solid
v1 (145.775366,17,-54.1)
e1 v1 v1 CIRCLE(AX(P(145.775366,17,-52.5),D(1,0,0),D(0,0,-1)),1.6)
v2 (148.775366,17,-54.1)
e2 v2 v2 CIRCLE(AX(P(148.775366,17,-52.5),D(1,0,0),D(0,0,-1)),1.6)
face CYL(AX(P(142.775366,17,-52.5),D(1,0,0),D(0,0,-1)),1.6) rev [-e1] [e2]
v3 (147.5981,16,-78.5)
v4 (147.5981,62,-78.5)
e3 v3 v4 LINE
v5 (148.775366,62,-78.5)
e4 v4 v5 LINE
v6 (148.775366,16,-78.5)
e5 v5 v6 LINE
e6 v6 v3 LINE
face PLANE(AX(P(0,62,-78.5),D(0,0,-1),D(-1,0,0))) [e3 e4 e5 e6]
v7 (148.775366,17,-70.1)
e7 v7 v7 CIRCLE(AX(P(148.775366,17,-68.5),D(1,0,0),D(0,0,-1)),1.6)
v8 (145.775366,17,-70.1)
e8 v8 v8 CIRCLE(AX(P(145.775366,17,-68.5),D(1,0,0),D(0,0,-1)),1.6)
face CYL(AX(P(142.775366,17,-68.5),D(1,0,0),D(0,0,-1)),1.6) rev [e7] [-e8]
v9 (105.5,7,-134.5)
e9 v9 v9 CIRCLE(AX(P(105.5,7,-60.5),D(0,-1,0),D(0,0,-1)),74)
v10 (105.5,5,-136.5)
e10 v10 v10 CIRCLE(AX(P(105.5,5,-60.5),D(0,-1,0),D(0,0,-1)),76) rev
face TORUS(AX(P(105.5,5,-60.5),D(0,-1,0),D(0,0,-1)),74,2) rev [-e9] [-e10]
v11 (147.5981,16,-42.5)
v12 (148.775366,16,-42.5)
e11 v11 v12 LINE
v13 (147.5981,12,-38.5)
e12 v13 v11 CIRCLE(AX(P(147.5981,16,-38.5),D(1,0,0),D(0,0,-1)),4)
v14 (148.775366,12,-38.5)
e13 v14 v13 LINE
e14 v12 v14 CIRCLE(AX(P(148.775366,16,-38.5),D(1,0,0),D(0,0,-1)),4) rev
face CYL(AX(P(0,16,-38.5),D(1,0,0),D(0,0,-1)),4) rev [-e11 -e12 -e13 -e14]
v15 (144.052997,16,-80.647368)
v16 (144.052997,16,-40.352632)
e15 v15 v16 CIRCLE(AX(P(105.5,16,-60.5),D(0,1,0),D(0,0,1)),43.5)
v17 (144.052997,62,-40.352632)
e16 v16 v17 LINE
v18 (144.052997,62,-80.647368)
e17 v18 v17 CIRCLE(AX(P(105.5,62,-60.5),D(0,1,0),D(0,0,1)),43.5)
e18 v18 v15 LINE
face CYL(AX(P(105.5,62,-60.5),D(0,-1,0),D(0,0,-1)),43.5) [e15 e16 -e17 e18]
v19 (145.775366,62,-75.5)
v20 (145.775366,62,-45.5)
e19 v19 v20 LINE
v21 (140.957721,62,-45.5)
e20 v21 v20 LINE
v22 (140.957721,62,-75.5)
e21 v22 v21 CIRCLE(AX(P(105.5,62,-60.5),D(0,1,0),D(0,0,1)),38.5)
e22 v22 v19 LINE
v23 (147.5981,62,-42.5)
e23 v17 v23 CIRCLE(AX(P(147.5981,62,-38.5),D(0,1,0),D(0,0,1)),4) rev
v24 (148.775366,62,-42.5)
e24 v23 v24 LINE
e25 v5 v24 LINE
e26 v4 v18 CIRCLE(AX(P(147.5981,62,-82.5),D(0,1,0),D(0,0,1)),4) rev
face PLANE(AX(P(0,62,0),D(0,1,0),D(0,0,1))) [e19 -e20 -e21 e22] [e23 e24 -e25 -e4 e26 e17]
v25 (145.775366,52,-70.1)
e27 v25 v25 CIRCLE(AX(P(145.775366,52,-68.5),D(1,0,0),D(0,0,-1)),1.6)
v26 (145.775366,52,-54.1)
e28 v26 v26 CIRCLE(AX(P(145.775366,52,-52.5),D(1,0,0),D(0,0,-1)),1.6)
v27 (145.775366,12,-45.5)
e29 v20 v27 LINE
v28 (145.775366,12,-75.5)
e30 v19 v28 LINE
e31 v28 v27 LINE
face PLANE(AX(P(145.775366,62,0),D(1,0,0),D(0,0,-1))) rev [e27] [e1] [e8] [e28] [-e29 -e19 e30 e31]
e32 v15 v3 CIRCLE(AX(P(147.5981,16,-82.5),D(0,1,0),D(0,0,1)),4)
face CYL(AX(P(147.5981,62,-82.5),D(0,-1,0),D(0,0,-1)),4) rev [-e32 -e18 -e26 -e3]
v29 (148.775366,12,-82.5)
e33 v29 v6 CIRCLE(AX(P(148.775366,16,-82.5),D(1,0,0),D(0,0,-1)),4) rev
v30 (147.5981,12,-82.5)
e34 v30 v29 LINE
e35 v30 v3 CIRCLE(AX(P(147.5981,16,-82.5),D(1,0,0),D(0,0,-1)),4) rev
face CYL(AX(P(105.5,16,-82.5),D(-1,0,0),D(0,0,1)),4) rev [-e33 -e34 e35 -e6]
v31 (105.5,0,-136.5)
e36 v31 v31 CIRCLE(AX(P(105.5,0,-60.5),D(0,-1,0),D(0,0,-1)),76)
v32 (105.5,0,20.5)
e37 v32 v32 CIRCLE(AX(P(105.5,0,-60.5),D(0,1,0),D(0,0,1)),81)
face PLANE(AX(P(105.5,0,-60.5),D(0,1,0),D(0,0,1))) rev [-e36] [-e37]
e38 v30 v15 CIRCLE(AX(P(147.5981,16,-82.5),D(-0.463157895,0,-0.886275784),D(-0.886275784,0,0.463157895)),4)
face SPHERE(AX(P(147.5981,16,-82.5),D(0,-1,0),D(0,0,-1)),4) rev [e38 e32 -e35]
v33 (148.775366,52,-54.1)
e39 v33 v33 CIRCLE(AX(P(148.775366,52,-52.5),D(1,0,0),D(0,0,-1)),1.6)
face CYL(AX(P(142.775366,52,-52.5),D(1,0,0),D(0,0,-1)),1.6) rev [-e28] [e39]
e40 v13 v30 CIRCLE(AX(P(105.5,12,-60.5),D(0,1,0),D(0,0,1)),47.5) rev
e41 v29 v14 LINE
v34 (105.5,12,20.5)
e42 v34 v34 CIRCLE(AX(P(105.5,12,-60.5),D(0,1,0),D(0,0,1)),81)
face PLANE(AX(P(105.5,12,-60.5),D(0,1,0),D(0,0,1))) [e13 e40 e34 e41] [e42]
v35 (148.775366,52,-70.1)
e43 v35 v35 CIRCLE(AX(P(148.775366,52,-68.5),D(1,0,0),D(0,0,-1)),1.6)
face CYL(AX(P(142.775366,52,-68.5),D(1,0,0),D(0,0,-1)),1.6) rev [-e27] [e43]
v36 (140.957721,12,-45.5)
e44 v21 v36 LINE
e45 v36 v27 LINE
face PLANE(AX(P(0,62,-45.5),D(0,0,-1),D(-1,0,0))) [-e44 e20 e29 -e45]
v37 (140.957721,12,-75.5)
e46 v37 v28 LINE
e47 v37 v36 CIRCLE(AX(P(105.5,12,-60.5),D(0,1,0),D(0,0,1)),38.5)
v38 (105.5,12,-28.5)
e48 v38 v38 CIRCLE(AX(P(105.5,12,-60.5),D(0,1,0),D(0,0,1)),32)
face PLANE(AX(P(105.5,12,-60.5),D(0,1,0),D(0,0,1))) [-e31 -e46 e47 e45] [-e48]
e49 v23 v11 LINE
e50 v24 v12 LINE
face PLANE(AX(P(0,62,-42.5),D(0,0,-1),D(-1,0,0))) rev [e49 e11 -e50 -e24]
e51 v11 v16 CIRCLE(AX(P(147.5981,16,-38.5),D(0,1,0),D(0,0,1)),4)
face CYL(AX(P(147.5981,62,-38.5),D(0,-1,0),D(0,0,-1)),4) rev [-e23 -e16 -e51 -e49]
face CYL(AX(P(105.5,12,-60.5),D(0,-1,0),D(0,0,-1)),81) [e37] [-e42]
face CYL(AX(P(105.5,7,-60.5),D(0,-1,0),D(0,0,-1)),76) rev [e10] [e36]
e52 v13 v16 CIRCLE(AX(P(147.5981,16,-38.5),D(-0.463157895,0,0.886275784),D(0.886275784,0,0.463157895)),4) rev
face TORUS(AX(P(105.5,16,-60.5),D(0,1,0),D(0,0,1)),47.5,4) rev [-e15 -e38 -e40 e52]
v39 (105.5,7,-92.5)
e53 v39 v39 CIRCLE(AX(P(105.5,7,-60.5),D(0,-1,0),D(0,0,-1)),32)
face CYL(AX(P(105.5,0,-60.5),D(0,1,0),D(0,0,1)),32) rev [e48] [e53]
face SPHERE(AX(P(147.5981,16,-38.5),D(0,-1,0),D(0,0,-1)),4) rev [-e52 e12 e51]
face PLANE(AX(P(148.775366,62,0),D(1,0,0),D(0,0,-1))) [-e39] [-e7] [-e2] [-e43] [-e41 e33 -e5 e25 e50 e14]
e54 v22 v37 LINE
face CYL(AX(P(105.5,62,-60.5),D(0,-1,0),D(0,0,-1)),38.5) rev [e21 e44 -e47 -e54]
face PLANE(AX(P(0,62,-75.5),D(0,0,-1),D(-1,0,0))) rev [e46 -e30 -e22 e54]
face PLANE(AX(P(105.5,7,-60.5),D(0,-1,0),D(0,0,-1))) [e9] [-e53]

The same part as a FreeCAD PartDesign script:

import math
import FreeCAD as App
import Part
import Sketcher


def edges_at(feature, points):
    """Names of the edges that pass closest to the given points."""
    edges = feature.Shape.Edges
    near = lambda p: min(range(len(edges)), key=lambda i: edges[i].distToShape(Part.Vertex(*p))[0])
    return sorted({f"Edge{near(p) + 1}" for p in points})

doc = App.newDocument("Part")
body = doc.addObject("PartDesign::Body", "Body")

# Sketch on XZ plane
sketch1 = body.newObject("Sketcher::SketchObject", "Sketch")
sketch1.AttachmentSupport = (doc.getObject("XZ_Plane"), [""])
sketch1.MapMode = "FlatFace"
sketch1.addGeometry(Part.Circle(App.Vector(106, -60, 0), App.Vector(0, 0, 1), 81), False)
sketch1.addConstraint([
    Sketcher.Constraint("Diameter", 0, 162.0),
    Sketcher.Constraint("DistanceX", -1, 1, 0, 3, 105.5),
    Sketcher.Constraint("DistanceY", 0, 3, -1, 1, 60.5),
])
pad1 = body.newObject("PartDesign::Pad", "Pad")
pad1.Profile = sketch1
pad1.Length = 12
pad1.Reversed = True

# Sketch on XZ plane
sketch2 = body.newObject("Sketcher::SketchObject", "Sketch001")
sketch2.AttachmentSupport = (doc.getObject("XZ_Plane"), [""])
sketch2.MapMode = "FlatFace"
sketch2.addGeometry(Part.Circle(App.Vector(106, -60, 0), App.Vector(0, 0, 1), 76), False)
sketch2.addConstraint([
    Sketcher.Constraint("Diameter", 0, 152.0),
    Sketcher.Constraint("DistanceX", -1, 1, 0, 3, 105.5),
    Sketcher.Constraint("DistanceY", 0, 3, -1, 1, 60.5),
])
pocket1 = body.newObject("PartDesign::Pocket", "Pocket")
pocket1.Profile = sketch2
pocket1.Length = 7

# Sketch on XZ plane
sketch3 = body.newObject("Sketcher::SketchObject", "Sketch002")
sketch3.AttachmentSupport = (doc.getObject("XZ_Plane"), [""])
sketch3.MapMode = "FlatFace"
sketch3.AttachmentOffset = App.Placement(App.Vector(0, 0, -12), App.Rotation())
sketch3.addGeometry(Part.Circle(App.Vector(106, -60, 0), App.Vector(0, 0, 1), 32), False)
sketch3.addConstraint([
    Sketcher.Constraint("Diameter", 0, 64.0),
    Sketcher.Constraint("DistanceX", -1, 1, 0, 3, 105.5),
    Sketcher.Constraint("DistanceY", 0, 3, -1, 1, 60.5),
])
pocket2 = body.newObject("PartDesign::Pocket", "Pocket001")
pocket2.Profile = sketch3
pocket2.Type = "ThroughAll"
pocket2.Reversed = True

# Sketch on XZ plane
sketch4 = body.newObject("Sketcher::SketchObject", "Sketch003")
sketch4.AttachmentSupport = (doc.getObject("XZ_Plane"), [""])
sketch4.MapMode = "FlatFace"
sketch4.AttachmentOffset = App.Placement(App.Vector(0, 0, -12), App.Rotation())
sketch4.addGeometry([
    Part.ArcOfCircle(Part.Circle(App.Vector(105.5, -60.5, 0), App.Vector(0, 0, 1), 43.5), math.radians(24), math.radians(336)),  # 0
    Part.LineSegment(App.Vector(145.1, -42.5, 0), App.Vector(148.8, -42.5, 0)),  # 1
    Part.LineSegment(App.Vector(148.8, -42.5, 0), App.Vector(148.8, -78.5, 0)),  # 2
    Part.LineSegment(App.Vector(148.8, -78.5, 0), App.Vector(145.1, -78.5, 0)),  # 3
    Part.ArcOfCircle(Part.Circle(App.Vector(105.5, -60.5, 0), App.Vector(0, 0, 1), 38.5), math.radians(23), math.radians(337)),  # 4
    Part.LineSegment(App.Vector(141, -75.5, 0), App.Vector(145.8, -75.5, 0)),  # 5
    Part.LineSegment(App.Vector(145.8, -75.5, 0), App.Vector(145.8, -45.5, 0)),  # 6
    Part.LineSegment(App.Vector(145.8, -45.5, 0), App.Vector(141, -45.5, 0)),  # 7
], False)
sketch4.addConstraint([
    Sketcher.Constraint("Coincident", 0, 1, 1, 1),
    Sketcher.Constraint("Coincident", 1, 2, 2, 1),
    Sketcher.Constraint("Coincident", 2, 2, 3, 1),
    Sketcher.Constraint("Coincident", 3, 2, 0, 2),
    Sketcher.Constraint("Coincident", 4, 2, 5, 1),
    Sketcher.Constraint("Coincident", 5, 2, 6, 1),
    Sketcher.Constraint("Coincident", 6, 2, 7, 1),
    Sketcher.Constraint("Coincident", 7, 2, 4, 1),
    Sketcher.Constraint("Horizontal", 1),
    Sketcher.Constraint("Vertical", 2),
    Sketcher.Constraint("Horizontal", 3),
    Sketcher.Constraint("Horizontal", 5),
    Sketcher.Constraint("Vertical", 6),
    Sketcher.Constraint("Horizontal", 7),
    Sketcher.Constraint("Coincident", 4, 3, 0, 3),
    Sketcher.Constraint("Vertical", 0, 1, 3, 2),
    Sketcher.Constraint("Vertical", 4, 2, 7, 2),
    Sketcher.Constraint("Radius", 0, 43.5),
    Sketcher.Constraint("Radius", 4, 38.5),
    Sketcher.Constraint("DistanceY", 2, 2, 2, 1, 36.0),
    Sketcher.Constraint("DistanceY", 6, 1, 6, 2, 30.0),
    Sketcher.Constraint("DistanceX", 5, 2, 2, 2, 3.0),
    Sketcher.Constraint("DistanceX", -1, 1, 0, 3, 105.5),
    Sketcher.Constraint("DistanceY", 0, 3, -1, 1, 60.5),
    Sketcher.Constraint("DistanceX", 1, 1, 1, 2, 3.67423),
])
pad2 = body.newObject("PartDesign::Pad", "Pad001")
pad2.Profile = sketch4
pad2.Length = 50
pad2.Reversed = True

# Sketch on YZ plane
sketch5 = body.newObject("Sketcher::SketchObject", "Sketch004")
sketch5.AttachmentSupport = (doc.getObject("YZ_Plane"), [""])
sketch5.MapMode = "FlatFace"
sketch5.AttachmentOffset = App.Placement(App.Vector(0, 0, 148.775366), App.Rotation())
sketch5.addGeometry([
    Part.Circle(App.Vector(52, -52.5, 0), App.Vector(0, 0, 1), 1.6),
    Part.Circle(App.Vector(52, -68.5, 0), App.Vector(0, 0, 1), 1.6),
    Part.Circle(App.Vector(17, -68.5, 0), App.Vector(0, 0, 1), 1.6),
    Part.Circle(App.Vector(17, -52.5, 0), App.Vector(0, 0, 1), 1.6),
], False)
sketch5.addConstraint([
    Sketcher.Constraint("Equal", 0, 1),
    Sketcher.Constraint("Equal", 1, 2),
    Sketcher.Constraint("Equal", 2, 3),
    Sketcher.Constraint("Horizontal", 1, 3, 2, 3),
    Sketcher.Constraint("Horizontal", 0, 3, 3, 3),
    Sketcher.Constraint("Vertical", 0, 3, 1, 3),
    Sketcher.Constraint("Vertical", 2, 3, 3, 3),
    Sketcher.Constraint("Diameter", 0, 3.2),
    Sketcher.Constraint("DistanceX", -1, 1, 0, 3, 52.0),
    Sketcher.Constraint("DistanceX", -1, 1, 2, 3, 17.0),
    Sketcher.Constraint("DistanceY", 1, 3, 0, 3, 16.0),
    Sketcher.Constraint("DistanceY", 0, 3, -1, 1, 52.5),
])
pocket3 = body.newObject("PartDesign::Pocket", "Pocket002")
pocket3.Profile = sketch5
pocket3.Length = 6
doc.recompute()

fillet = body.newObject("PartDesign::Fillet", "Fillet")
fillet.Base = (pocket3, edges_at(pocket3, [
    (146.938, 12, -42.5),
    (145.101, 37, -42.5),
    (62, 12, -60.5),
    (145.101, 37, -78.5),
    (146.938, 12, -78.5),
]))
fillet.Radius = 4
doc.recompute()

fillet2 = body.newObject("PartDesign::Fillet", "Fillet001")
fillet2.Base = (fillet, edges_at(fillet, [(105.5, 7, 15.5)]))
fillet2.Radius = 2

doc.recompute()
